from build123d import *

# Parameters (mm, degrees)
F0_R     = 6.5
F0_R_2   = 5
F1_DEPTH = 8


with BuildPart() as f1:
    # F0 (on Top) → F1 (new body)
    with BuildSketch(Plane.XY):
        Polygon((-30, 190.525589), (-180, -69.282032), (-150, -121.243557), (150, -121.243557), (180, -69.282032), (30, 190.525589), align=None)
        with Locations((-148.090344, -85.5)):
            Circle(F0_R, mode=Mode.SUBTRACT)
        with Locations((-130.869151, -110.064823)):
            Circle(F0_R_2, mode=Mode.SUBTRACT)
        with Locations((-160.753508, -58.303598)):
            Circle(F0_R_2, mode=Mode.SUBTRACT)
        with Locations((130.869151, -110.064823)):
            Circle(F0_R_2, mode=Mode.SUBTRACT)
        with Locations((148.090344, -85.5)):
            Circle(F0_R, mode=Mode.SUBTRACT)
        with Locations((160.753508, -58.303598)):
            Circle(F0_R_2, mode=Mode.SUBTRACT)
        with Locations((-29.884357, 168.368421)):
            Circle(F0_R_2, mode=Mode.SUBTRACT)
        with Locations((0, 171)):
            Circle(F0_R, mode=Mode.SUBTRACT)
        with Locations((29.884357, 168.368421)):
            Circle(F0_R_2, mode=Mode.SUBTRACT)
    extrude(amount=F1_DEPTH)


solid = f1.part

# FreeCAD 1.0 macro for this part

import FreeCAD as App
import Part
import Sketcher
Q = App.Units.Quantity


def add_polygon(sketch, points):
    """Adds a closed chain of lines whose ends are joined by coincident constraints."""
    first, n = sketch.GeometryCount, len(points)
    for a, b in zip(points, points[1:] + points[:1]):
        sketch.addGeometry(Part.LineSegment(App.Vector(*a, 0), App.Vector(*b, 0)), False)
    for i in range(n):
        sketch.addConstraint(Sketcher.Constraint("Coincident", first + i, 2, first + (i + 1) % n, 1))

doc = App.newDocument("Part")
body = doc.addObject("PartDesign::Body", "Body")

sketch1 = body.newObject("Sketcher::SketchObject", "Sketch")
sketch1.AttachmentSupport = (doc.getObject("XY_Plane"), [""])
sketch1.MapMode = "FlatFace"
add_polygon(sketch1, [(-30, 190.525589), (-180, -69.282032), (-150, -121.243557), (150, -121.243557), (180, -69.282032), (30, 190.525589)])
sketch1.addGeometry(Part.Circle(App.Vector(-130.869151, -110.064823, 0), App.Vector(0, 0, 1), 5), False)
sketch1.addGeometry(Part.Circle(App.Vector(-148.090344, -85.5, 0), App.Vector(0, 0, 1), 6.5), False)
sketch1.addGeometry(Part.Circle(App.Vector(-160.753508, -58.303598, 0), App.Vector(0, 0, 1), 5), False)
sketch1.addGeometry(Part.Circle(App.Vector(130.869151, -110.064823, 0), App.Vector(0, 0, 1), 5), False)
sketch1.addGeometry(Part.Circle(App.Vector(148.090344, -85.5, 0), App.Vector(0, 0, 1), 6.5), False)
sketch1.addGeometry(Part.Circle(App.Vector(160.753508, -58.303598, 0), App.Vector(0, 0, 1), 5), False)
sketch1.addGeometry(Part.Circle(App.Vector(-29.884357, 168.368421, 0), App.Vector(0, 0, 1), 5), False)
sketch1.addGeometry(Part.Circle(App.Vector(0, 171, 0), App.Vector(0, 0, 1), 6.5), False)
sketch1.addGeometry(Part.Circle(App.Vector(29.884357, 168.368421, 0), App.Vector(0, 0, 1), 5), False)
sketch1.addConstraint(Sketcher.Constraint("Horizontal", 2))
sketch1.addConstraint(Sketcher.Constraint("Horizontal", 5))
sketch1.addConstraint(Sketcher.Constraint("Equal", 6, 8))
sketch1.addConstraint(Sketcher.Constraint("Equal", 8, 9))
sketch1.addConstraint(Sketcher.Constraint("Equal", 7, 10))
sketch1.addConstraint(Sketcher.Constraint("Equal", 9, 11))
sketch1.addConstraint(Sketcher.Constraint("Equal", 11, 12))
sketch1.addConstraint(Sketcher.Constraint("Equal", 10, 13))
sketch1.addConstraint(Sketcher.Constraint("Equal", 12, 14))
sketch1.addConstraint(Sketcher.Constraint("Symmetric", 6, 3, 9, 3, -2))
sketch1.addConstraint(Sketcher.Constraint("Symmetric", 7, 3, 10, 3, -2))
sketch1.addConstraint(Sketcher.Constraint("Symmetric", 8, 3, 11, 3, -2))
sketch1.addConstraint(Sketcher.Constraint("Symmetric", 12, 3, 14, 3, -2))
sketch1.addConstraint(Sketcher.Constraint("Symmetric", 0, 2, 3, 2, -2))
sketch1.addConstraint(Sketcher.Constraint("PointOnObject", 13, 3, -2))
sketch1.addConstraint(Sketcher.Constraint("Parallel", 0, 3))
sketch1.addConstraint(Sketcher.Constraint("Parallel", 1, 4))
sketch1.addConstraint(Sketcher.Constraint("Equal", 1, 3))
sketch1.addConstraint(Sketcher.Constraint("Diameter", 6, 10.0))
sketch1.addConstraint(Sketcher.Constraint("Diameter", 7, 13.0))
sketch1.addConstraint(Sketcher.Constraint("DistanceX", 2, 1, 2, 2, 300.0))
sketch1.addConstraint(Sketcher.Constraint("DistanceX", 5, 2, 5, 1, 60.0))
sketch1.addConstraint(Sketcher.Constraint("Angle", 0, Q("-120 deg")))
sketch1.addConstraint(Sketcher.Constraint("Distance", 0, 300.0))
sketch1.addConstraint(Sketcher.Constraint("DistanceY", -1, 1, 13, 3, 171.0))
sketch1.addConstraint(Sketcher.Constraint("DistanceY", 7, 3, -1, 1, 85.5))
sketch1.addConstraint(Sketcher.Constraint("DistanceY", 7, 3, 8, 3, 27.196402))
sketch1.addConstraint(Sketcher.Constraint("DistanceX", 6, 3, 9, 3, 261.738302))
sketch1.addConstraint(Sketcher.Constraint("DistanceX", 12, 3, 10, 3, 177.974701))
sketch1.addConstraint(Sketcher.Constraint("DistanceX", 8, 3, -1, 1, 160.753508))
sketch1.addConstraint(Sketcher.Constraint("DistanceY", -1, 1, 12, 3, 168.368421))
sketch1.addConstraint(Sketcher.Constraint("DistanceY", 0, 2, -1, 1, 69.282032))
sketch1.addConstraint(Sketcher.Constraint("DistanceX", 8, 3, 10, 3, 308.843852))
sketch1.addConstraint(Sketcher.Constraint("DistanceY", 6, 3, 0, 2, 40.782791))
pad1 = body.newObject("PartDesign::Pad", "Pad")
pad1.Profile = sketch1
pad1.Length = 8

doc.recompute()
